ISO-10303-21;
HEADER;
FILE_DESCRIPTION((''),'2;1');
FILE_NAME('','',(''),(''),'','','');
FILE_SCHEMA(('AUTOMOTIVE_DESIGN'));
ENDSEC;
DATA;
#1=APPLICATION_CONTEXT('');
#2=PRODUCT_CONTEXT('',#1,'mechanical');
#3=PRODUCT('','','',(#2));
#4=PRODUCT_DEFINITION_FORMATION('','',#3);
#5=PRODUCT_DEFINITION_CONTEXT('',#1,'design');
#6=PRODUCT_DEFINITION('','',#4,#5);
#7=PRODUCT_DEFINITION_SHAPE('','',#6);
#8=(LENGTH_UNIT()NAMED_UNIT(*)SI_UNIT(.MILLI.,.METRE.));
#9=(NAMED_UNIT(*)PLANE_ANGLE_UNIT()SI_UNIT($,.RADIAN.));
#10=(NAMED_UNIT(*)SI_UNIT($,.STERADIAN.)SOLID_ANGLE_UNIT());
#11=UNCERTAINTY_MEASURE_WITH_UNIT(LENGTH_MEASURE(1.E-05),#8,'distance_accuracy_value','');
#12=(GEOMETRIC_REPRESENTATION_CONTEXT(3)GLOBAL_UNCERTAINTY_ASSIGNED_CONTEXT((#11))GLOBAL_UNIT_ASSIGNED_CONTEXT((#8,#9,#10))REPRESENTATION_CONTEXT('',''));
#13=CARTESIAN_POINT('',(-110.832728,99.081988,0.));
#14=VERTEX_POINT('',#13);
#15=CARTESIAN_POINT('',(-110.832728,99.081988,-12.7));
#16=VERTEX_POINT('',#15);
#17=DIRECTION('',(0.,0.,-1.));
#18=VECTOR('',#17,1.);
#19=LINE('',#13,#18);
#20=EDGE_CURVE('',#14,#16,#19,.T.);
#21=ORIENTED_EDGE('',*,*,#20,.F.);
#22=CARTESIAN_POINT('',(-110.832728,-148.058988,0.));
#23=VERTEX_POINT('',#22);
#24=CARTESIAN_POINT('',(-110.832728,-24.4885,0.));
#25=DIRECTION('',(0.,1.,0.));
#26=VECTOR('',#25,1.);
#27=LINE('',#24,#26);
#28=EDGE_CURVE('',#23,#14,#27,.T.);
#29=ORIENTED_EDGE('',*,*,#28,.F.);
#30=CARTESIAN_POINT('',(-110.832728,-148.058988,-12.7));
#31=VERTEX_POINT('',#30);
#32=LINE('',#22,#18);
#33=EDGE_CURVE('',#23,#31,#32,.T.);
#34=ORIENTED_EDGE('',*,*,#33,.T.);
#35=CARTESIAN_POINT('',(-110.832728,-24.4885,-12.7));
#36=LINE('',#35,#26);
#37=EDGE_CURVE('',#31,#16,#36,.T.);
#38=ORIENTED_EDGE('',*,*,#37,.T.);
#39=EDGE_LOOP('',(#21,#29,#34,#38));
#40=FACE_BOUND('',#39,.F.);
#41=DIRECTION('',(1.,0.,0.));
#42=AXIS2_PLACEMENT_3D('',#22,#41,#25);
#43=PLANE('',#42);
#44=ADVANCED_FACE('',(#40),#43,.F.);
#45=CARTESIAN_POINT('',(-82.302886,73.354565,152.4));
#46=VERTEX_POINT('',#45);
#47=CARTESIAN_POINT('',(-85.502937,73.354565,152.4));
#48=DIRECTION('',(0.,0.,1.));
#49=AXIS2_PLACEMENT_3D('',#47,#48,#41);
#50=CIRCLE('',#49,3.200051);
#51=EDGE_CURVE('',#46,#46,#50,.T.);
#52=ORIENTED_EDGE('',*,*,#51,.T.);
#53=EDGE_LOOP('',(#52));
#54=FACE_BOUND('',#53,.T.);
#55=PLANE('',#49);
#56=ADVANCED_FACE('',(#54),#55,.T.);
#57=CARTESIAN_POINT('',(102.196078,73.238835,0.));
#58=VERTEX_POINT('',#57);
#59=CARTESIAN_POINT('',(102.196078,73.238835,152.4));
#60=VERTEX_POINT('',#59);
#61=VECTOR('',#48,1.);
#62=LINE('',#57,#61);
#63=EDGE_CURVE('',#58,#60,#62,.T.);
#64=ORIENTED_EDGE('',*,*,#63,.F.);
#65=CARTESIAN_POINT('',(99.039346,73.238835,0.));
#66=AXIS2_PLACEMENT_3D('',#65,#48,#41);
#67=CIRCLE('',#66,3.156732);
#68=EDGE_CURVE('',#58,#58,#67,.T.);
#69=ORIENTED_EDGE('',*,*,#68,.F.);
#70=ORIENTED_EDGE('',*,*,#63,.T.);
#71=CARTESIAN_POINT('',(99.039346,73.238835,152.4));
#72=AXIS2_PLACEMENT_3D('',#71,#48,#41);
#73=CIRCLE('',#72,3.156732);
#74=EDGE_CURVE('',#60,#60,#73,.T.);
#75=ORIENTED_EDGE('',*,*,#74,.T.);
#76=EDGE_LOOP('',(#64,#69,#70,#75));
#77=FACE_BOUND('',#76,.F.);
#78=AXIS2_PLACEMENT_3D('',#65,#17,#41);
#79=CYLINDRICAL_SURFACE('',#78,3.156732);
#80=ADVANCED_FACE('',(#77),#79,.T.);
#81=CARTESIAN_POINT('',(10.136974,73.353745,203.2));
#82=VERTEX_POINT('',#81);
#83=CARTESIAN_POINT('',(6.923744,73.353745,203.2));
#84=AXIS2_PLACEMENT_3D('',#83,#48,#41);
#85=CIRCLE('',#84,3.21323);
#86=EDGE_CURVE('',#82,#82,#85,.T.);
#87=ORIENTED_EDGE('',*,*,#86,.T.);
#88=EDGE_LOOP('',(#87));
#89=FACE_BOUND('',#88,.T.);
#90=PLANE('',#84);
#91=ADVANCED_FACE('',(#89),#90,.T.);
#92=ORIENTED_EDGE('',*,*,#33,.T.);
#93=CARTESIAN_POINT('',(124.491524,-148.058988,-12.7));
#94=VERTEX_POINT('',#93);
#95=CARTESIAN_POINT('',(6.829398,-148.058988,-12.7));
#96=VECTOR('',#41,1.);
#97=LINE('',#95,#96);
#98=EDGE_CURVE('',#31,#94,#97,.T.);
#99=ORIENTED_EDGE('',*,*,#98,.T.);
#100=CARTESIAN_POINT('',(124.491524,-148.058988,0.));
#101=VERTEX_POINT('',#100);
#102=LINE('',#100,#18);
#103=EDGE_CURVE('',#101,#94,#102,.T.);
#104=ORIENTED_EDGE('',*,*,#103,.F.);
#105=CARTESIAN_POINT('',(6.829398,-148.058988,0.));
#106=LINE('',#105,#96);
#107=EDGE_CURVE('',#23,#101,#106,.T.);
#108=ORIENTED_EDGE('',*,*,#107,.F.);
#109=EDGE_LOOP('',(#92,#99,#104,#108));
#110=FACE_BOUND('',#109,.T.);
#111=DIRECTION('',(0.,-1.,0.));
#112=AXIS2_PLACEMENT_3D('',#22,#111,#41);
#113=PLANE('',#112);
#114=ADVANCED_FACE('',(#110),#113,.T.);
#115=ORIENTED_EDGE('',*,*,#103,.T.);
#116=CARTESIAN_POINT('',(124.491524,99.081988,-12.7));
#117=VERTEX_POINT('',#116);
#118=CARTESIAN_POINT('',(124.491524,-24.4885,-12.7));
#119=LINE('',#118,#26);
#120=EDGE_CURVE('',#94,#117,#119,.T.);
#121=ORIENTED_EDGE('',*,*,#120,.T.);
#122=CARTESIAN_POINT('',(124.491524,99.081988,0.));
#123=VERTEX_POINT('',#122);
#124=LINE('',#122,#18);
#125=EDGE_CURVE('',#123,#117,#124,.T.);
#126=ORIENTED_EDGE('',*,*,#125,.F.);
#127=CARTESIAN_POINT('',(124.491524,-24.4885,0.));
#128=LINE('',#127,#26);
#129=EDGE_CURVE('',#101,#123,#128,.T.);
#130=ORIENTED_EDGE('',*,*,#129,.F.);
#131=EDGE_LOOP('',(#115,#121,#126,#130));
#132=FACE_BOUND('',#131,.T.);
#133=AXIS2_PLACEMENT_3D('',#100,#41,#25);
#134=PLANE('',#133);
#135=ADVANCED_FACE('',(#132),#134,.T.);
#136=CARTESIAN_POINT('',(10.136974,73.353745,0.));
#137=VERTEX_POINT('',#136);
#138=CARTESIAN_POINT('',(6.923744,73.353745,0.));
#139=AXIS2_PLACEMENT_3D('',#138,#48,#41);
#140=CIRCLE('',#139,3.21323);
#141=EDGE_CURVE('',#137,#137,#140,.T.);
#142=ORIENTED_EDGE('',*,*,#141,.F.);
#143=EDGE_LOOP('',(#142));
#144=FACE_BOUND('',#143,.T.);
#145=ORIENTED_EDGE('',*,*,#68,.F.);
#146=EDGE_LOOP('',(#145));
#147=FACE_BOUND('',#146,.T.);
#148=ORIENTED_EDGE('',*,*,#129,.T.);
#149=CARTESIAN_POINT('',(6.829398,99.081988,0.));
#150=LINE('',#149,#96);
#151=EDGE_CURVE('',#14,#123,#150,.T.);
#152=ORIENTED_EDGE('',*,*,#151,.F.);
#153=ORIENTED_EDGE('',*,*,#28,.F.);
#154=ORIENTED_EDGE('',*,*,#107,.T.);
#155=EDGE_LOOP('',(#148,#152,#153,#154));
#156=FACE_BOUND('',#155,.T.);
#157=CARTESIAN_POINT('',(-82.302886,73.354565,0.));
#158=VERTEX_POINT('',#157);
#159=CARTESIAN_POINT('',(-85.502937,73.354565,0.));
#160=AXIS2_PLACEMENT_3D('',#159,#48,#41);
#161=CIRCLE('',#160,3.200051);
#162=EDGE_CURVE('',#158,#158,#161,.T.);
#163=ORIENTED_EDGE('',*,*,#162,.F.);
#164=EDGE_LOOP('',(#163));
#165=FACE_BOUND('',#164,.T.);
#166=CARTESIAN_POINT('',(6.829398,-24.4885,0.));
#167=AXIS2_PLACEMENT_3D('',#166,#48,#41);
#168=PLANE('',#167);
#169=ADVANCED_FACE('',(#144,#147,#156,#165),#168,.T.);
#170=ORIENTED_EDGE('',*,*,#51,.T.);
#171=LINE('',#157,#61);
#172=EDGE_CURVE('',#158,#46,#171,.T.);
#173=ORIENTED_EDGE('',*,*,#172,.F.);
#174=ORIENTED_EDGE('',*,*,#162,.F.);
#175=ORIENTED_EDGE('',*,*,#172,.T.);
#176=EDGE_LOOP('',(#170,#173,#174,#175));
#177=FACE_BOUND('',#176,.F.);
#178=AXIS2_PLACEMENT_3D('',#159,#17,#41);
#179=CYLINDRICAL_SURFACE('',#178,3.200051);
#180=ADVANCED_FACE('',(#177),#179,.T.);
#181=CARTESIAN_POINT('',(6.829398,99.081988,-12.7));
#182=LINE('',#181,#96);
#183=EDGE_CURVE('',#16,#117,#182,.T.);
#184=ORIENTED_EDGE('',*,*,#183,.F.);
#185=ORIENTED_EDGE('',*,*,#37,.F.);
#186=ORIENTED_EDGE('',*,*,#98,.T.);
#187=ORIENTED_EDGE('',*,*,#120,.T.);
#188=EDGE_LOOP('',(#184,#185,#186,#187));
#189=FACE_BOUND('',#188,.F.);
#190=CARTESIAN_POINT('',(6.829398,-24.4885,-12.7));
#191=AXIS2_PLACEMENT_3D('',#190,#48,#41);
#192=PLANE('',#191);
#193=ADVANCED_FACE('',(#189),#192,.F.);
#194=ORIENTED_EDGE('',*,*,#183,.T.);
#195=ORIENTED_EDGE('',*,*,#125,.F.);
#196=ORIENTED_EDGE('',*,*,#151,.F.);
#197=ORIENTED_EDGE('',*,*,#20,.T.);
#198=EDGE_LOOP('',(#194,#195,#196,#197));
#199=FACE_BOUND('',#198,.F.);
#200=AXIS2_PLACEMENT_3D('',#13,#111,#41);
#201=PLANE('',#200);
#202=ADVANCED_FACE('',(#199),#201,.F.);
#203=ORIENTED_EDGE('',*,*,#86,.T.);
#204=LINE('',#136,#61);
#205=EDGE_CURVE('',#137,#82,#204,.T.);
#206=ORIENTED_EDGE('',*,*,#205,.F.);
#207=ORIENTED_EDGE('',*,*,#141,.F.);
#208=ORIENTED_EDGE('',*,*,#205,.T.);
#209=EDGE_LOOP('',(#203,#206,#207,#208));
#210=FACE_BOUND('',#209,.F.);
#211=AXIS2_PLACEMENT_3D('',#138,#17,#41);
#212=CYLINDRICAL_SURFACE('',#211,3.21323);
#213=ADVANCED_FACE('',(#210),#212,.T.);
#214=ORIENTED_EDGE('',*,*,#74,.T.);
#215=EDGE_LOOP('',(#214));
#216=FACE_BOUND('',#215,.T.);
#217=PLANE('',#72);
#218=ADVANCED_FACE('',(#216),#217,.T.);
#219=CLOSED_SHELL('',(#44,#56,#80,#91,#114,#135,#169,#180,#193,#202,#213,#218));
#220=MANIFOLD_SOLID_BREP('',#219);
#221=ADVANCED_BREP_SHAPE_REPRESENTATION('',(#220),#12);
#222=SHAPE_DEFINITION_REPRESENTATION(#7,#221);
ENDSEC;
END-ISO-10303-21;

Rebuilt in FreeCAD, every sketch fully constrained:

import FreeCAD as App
import Part
import Sketcher
from FreeCAD import Vector
Q = App.Units.Quantity


def add_polygon(sketch, points):
    """Adds a closed chain of lines whose ends are joined by coincident constraints."""
    first, n = sketch.GeometryCount, len(points)
    for a, b in zip(points, points[1:] + points[:1]):
        sketch.addGeometry(Part.LineSegment(App.Vector(*a, 0), App.Vector(*b, 0)), False)
    for i in range(n):
        sketch.addConstraint(Sketcher.Constraint("Coincident", first + i, 2, first + (i + 1) % n, 1))

doc = App.newDocument("Part")
body = doc.addObject("PartDesign::Body", "Body")

# Sketch on XY plane
sketch1 = body.newObject("Sketcher::SketchObject", "Sketch")
sketch1.AttachmentSupport = (doc.getObject("XY_Plane"), [""])
sketch1.MapMode = "FlatFace"
add_polygon(sketch1, [(-110.832728, 99.081988), (-110.832728, -148.058988), (124.491524, -148.058988), (124.491524, 99.081988)])  # lines 0-3
sketch1.addConstraint([
    Sketcher.Constraint("Vertical", 0),
    Sketcher.Constraint("Horizontal", 1),
    Sketcher.Constraint("Vertical", 2),
    Sketcher.Constraint("Horizontal", 3),
    Sketcher.Constraint("DistanceX", 1, 1, 1, 2, Q("235.324252 mm")),
    Sketcher.Constraint("DistanceY", 0, 2, 0, 1, Q("247.140977 mm")),
    Sketcher.Constraint("DistanceX", 0, 2, -1, 1, Q("110.832728 mm")),
    Sketcher.Constraint("DistanceY", 0, 2, -1, 1, Q("148.058988 mm")),
])
pad1 = body.newObject("PartDesign::Pad", "Pad")
pad1.Profile = sketch1
pad1.Length = Q("0.5 in")
pad1.Reversed = True

# Sketch on XY plane
sketch2 = body.newObject("Sketcher::SketchObject", "Sketch001")
sketch2.AttachmentSupport = (doc.getObject("XY_Plane"), [""])
sketch2.MapMode = "FlatFace"
sketch2.addGeometry(Part.Circle(Vector(-85.502937, 73.354565, 0), Vector(0, 0, 1), 3.200051), False)
sketch2.addConstraint([
    Sketcher.Constraint("Diameter", 0, Q("6.400102 mm")),
    Sketcher.Constraint("DistanceX", 0, 3, -1, 1, Q("85.502937 mm")),
    Sketcher.Constraint("DistanceY", -1, 1, 0, 3, Q("73.354565 mm")),
])
pad2 = body.newObject("PartDesign::Pad", "Pad001")
pad2.Profile = sketch2
pad2.Length = Q("6 in")

# Sketch on XY plane
sketch3 = body.newObject("Sketcher::SketchObject", "Sketch002")
sketch3.AttachmentSupport = (doc.getObject("XY_Plane"), [""])
sketch3.MapMode = "FlatFace"
sketch3.addGeometry(Part.Circle(Vector(99.039346, 73.238835, 0), Vector(0, 0, 1), 3.156732), False)
sketch3.addConstraint([
    Sketcher.Constraint("Diameter", 0, Q("6.313464 mm")),
    Sketcher.Constraint("DistanceX", -1, 1, 0, 3, Q("99.039346 mm")),
    Sketcher.Constraint("DistanceY", -1, 1, 0, 3, Q("73.238835 mm")),
])
pad3 = body.newObject("PartDesign::Pad", "Pad002")
pad3.Profile = sketch3
pad3.Length = Q("6 in")

# Sketch on XY plane
sketch4 = body.newObject("Sketcher::SketchObject", "Sketch003")
sketch4.AttachmentSupport = (doc.getObject("XY_Plane"), [""])
sketch4.MapMode = "FlatFace"
sketch4.addGeometry(Part.Circle(Vector(6.923744, 73.353745, 0), Vector(0, 0, 1), 3.21323), False)
sketch4.addConstraint([
    Sketcher.Constraint("Diameter", 0, Q("6.42646 mm")),
    Sketcher.Constraint("DistanceX", -1, 1, 0, 3, Q("6.923744 mm")),
    Sketcher.Constraint("DistanceY", -1, 1, 0, 3, Q("73.353745 mm")),
])
pad4 = body.newObject("PartDesign::Pad", "Pad003")
pad4.Profile = sketch4
pad4.Length = Q("8 in")

doc.recompute()
